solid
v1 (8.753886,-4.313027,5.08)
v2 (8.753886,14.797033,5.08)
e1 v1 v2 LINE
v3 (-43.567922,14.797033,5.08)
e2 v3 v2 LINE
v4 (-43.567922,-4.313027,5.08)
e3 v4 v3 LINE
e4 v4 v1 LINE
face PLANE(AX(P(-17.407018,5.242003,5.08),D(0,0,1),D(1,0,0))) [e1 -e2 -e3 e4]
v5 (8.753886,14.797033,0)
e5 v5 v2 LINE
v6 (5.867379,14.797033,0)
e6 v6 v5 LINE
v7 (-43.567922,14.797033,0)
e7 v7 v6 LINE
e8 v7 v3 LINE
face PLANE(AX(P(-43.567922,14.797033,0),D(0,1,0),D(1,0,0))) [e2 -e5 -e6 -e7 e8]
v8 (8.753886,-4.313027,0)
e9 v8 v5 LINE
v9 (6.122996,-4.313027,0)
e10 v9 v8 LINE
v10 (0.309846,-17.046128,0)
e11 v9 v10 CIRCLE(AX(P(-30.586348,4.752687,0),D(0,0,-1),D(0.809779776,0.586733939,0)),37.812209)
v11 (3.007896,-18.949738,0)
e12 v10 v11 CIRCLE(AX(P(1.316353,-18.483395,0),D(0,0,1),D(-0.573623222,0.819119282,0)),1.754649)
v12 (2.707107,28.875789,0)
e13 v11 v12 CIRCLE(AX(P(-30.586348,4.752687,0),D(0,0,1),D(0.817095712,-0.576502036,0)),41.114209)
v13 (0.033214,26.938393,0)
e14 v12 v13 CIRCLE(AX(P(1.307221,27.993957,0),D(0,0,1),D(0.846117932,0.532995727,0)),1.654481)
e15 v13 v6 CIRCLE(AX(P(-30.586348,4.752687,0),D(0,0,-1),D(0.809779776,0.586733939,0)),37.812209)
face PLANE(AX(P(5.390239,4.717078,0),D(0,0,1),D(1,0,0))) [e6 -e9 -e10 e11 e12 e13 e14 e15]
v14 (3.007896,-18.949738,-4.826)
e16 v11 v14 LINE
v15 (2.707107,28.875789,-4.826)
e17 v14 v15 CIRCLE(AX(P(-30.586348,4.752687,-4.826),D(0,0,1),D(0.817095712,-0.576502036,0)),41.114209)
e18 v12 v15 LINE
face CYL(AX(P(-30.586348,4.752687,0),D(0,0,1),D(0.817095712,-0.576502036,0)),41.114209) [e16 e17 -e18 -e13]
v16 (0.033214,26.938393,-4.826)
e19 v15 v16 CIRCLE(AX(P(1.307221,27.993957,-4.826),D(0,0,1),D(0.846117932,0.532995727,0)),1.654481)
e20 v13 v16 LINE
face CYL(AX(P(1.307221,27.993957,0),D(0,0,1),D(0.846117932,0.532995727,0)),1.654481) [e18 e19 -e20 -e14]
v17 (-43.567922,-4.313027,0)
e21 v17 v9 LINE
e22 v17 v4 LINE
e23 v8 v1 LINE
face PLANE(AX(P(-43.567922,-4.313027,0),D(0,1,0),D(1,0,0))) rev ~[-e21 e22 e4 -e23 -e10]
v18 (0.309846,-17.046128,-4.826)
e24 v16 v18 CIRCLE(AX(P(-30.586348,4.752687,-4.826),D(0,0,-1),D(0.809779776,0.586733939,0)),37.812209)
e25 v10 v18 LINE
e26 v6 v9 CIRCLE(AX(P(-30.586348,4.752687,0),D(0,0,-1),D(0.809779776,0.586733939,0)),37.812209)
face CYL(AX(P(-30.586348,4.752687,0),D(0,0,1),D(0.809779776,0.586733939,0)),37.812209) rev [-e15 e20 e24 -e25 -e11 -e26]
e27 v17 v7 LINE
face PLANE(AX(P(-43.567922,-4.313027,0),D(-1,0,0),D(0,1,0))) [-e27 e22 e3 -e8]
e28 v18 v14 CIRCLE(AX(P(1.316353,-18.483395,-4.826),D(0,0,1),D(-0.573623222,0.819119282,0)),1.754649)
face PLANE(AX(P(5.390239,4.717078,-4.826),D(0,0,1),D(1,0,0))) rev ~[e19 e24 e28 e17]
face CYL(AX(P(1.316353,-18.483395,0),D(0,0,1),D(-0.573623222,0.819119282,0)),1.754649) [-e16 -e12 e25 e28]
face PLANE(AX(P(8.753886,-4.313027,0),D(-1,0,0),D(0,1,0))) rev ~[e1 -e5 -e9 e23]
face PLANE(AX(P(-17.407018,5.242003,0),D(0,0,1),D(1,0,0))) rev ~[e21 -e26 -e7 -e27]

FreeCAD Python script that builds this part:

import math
import FreeCAD as App
import Part
import Sketcher
Q = App.Units.Quantity

doc = App.newDocument("Part")
body = doc.addObject("PartDesign::Body", "Body")

# Sketch on XY plane
sketch1 = doc.addObject("Sketcher::SketchObject", "Sketch")
body.addObject(sketch1)
sketch1.AttachmentSupport = (doc.XY_Plane, [""])
sketch1.MapMode = "FlatFace"
sketch1.addGeometry([
    Part.ArcOfCircle(Part.Circle(App.Vector(1.3, -18.5, 0), App.Vector(0, 0, 1), 1.8), math.radians(125), math.radians(345)),
    Part.ArcOfCircle(Part.Circle(App.Vector(-30.6, 4.8, 0), App.Vector(0, 0, 1), 41.1), math.radians(-35), math.radians(36)),
    Part.ArcOfCircle(Part.Circle(App.Vector(1.3, 28, 0), App.Vector(0, 0, 1), 1.7), math.radians(32), math.radians(220)),
    Part.ArcOfCircle(Part.Circle(App.Vector(-30.6, 4.8, 0), App.Vector(0, 0, 1), 37.8), math.radians(-35), math.radians(36)),
], False)
sketch1.addConstraint([
    Sketcher.Constraint("Coincident", 0, 2, 1, 1),
    Sketcher.Constraint("Coincident", 1, 2, 2, 1),
    Sketcher.Constraint("Coincident", 2, 2, 3, 2),
    Sketcher.Constraint("Coincident", 3, 1, 0, 1),
    Sketcher.Constraint("Coincident", 3, 3, 1, 3),
    Sketcher.Constraint("Radius", 0, Q("1.754649 mm")),
    Sketcher.Constraint("Radius", 1, Q("41.114209 mm")),
    Sketcher.Constraint("Radius", 2, Q("1.654481 mm")),
    Sketcher.Constraint("Radius", 3, Q("37.812209 mm")),
    Sketcher.Constraint("DistanceX", 1, 3, 0, 3, Q("31.902701 mm")),
    Sketcher.Constraint("DistanceY", 1, 3, 1, 2, Q("24.123102 mm")),
    Sketcher.Constraint("DistanceX", -1, 1, 2, 3, Q("1.307221 mm")),
    Sketcher.Constraint("DistanceY", -1, 1, 1, 2, Q("28.875789 mm")),
    Sketcher.Constraint("DistanceY", 3, 1, -1, 1, Q("17.046128 mm")),
    Sketcher.Constraint("DistanceX", 1, 3, 2, 3, Q("31.893568 mm")),
])
pad1 = doc.addObject("PartDesign::Pad", "Pad")
body.addObject(pad1)
pad1.Profile = sketch1
pad1.Length = Q("0.19 in")
pad1.Reversed = True

# Sketch on XY plane
sketch2 = doc.addObject("Sketcher::SketchObject", "Sketch001")
body.addObject(sketch2)
sketch2.AttachmentSupport = (doc.XY_Plane, [""])
sketch2.MapMode = "FlatFace"
sketch2.addGeometry([
    Part.LineSegment(App.Vector(-44, 15, 0), App.Vector(-44, -4, 0)),
    Part.LineSegment(App.Vector(-44, -4, 0), App.Vector(9, -4, 0)),
    Part.LineSegment(App.Vector(9, -4, 0), App.Vector(9, 15, 0)),
    Part.LineSegment(App.Vector(9, 15, 0), App.Vector(-44, 15, 0)),
], False)
sketch2.addConstraint([
    Sketcher.Constraint("Coincident", 0, 2, 1, 1),
    Sketcher.Constraint("Coincident", 1, 2, 2, 1),
    Sketcher.Constraint("Coincident", 2, 2, 3, 1),
    Sketcher.Constraint("Coincident", 3, 2, 0, 1),
    Sketcher.Constraint("Vertical", 0),
    Sketcher.Constraint("Horizontal", 1),
    Sketcher.Constraint("Vertical", 2),
    Sketcher.Constraint("Horizontal", 3),
    Sketcher.Constraint("DistanceX", 1, 1, 1, 2, Q("52.321808 mm")),
    Sketcher.Constraint("DistanceY", 0, 2, 0, 1, Q("19.11006 mm")),
    Sketcher.Constraint("DistanceX", 0, 2, -1, 1, Q("43.567922 mm")),
    Sketcher.Constraint("DistanceY", 0, 2, -1, 1, Q("4.313027 mm")),
])
pad2 = doc.addObject("PartDesign::Pad", "Pad001")
body.addObject(pad2)
pad2.Profile = sketch2
pad2.Length = Q("0.2 in")

doc.recompute()
